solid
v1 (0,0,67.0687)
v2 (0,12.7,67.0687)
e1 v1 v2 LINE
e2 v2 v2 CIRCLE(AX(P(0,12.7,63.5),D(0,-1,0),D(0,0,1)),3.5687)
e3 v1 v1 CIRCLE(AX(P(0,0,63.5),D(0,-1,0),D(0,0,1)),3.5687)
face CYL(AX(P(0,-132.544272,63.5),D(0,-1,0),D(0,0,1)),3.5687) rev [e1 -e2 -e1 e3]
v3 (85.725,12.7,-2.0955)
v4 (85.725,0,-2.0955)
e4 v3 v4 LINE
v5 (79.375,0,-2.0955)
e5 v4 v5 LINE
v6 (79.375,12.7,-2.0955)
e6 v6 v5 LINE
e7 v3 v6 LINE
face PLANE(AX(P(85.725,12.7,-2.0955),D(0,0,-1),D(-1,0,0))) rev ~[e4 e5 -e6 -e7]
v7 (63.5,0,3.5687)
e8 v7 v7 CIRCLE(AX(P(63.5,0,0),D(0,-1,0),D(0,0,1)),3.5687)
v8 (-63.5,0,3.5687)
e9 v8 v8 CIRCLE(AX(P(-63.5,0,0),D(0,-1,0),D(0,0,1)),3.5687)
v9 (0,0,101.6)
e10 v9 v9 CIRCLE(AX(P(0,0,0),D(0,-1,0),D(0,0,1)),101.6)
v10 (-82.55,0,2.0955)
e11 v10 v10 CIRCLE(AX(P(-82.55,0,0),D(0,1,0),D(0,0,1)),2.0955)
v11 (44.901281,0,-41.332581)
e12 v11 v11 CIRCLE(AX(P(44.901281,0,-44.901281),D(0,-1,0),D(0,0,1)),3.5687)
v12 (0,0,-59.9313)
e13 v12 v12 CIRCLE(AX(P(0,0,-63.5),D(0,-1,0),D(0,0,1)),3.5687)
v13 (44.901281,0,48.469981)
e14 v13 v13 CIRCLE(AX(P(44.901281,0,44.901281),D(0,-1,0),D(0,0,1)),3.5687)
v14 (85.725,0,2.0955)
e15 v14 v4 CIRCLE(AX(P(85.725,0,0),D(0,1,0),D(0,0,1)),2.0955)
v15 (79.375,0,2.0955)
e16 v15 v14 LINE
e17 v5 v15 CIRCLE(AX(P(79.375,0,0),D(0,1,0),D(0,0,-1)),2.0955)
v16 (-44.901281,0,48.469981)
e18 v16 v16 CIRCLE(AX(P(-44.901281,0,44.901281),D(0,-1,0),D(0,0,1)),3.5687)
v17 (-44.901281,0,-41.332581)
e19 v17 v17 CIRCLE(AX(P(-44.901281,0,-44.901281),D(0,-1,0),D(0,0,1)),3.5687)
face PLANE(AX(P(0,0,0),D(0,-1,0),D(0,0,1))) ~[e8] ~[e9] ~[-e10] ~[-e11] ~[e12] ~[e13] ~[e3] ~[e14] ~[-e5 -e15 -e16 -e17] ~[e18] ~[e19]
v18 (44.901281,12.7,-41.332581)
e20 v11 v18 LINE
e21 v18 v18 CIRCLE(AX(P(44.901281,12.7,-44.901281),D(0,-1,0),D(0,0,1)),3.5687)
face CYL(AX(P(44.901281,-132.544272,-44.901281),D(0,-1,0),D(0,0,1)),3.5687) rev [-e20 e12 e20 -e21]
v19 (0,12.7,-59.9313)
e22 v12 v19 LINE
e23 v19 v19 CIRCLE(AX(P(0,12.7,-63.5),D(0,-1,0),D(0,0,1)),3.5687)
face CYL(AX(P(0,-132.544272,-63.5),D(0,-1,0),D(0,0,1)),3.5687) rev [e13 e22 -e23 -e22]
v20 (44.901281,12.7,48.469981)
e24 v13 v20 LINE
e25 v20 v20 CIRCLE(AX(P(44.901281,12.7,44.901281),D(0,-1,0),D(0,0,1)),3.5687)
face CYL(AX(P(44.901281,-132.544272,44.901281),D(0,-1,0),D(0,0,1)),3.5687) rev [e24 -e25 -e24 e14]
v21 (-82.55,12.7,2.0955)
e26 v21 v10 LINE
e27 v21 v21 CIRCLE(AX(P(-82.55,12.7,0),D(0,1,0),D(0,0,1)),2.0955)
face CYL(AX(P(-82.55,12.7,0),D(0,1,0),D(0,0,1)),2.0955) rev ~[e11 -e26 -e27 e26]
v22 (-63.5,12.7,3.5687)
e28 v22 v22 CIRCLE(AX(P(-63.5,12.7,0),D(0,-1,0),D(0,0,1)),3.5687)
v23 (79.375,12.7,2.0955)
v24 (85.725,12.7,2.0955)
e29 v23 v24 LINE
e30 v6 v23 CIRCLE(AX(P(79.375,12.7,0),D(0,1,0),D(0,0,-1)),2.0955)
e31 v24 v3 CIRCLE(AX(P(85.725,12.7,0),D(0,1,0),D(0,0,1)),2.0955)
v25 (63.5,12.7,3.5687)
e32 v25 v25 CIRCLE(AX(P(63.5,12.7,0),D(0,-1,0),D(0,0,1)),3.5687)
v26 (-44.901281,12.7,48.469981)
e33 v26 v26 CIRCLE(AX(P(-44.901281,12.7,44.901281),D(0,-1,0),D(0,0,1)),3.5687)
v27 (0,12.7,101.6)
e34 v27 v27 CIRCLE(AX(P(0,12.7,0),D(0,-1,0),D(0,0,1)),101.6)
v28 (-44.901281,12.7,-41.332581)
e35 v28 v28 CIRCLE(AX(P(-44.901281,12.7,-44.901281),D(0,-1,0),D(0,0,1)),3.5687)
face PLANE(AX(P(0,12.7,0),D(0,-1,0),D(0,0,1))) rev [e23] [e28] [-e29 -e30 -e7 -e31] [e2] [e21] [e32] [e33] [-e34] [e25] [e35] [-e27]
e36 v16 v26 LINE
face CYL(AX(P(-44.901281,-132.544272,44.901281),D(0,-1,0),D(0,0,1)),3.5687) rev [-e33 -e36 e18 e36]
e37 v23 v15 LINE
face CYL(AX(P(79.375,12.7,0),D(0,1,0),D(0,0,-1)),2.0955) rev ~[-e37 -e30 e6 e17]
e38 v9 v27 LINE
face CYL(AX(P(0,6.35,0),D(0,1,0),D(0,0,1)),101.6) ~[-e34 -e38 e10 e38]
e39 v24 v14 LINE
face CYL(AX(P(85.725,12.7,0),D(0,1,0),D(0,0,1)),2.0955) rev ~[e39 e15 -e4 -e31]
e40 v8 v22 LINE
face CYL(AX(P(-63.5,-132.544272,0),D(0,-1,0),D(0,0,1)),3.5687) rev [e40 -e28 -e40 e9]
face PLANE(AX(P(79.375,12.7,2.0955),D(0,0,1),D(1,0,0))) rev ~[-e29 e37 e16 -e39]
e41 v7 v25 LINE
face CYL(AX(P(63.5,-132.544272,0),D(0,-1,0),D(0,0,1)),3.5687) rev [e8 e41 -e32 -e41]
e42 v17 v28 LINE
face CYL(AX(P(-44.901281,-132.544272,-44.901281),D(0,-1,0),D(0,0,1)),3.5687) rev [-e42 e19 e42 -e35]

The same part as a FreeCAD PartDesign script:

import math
import FreeCAD as App
import Part
import Sketcher

V = App.Vector
Q = App.Units.Quantity


def add_polygon(sketch, points):
    """Adds a closed chain of lines whose ends are joined by coincident constraints."""
    first, n = sketch.GeometryCount, len(points)
    for a, b in zip(points, points[1:] + points[:1]):
        sketch.addGeometry(Part.LineSegment(App.Vector(*a, 0), App.Vector(*b, 0)), False)
    for i in range(n):
        sketch.addConstraint(Sketcher.Constraint("Coincident", first + i, 2, first + (i + 1) % n, 1))

doc = App.newDocument("Part")
body = doc.addObject("PartDesign::Body", "Body")

# Sketch on YZ plane
sketch1 = body.newObject("Sketcher::SketchObject", "Sketch")
sketch1.AttachmentSupport = (doc.getObject("YZ_Plane"), [""])
sketch1.MapMode = "FlatFace"
add_polygon(sketch1, [(13, 0), (0, 0), (0, -102), (13, -102)])  # lines 0-3
sketch1.addConstraint(Sketcher.Constraint("Horizontal", 0))
sketch1.addConstraint(Sketcher.Constraint("Vertical", 1))
sketch1.addConstraint(Sketcher.Constraint("Horizontal", 2))
sketch1.addConstraint(Sketcher.Constraint("Vertical", 3))
sketch1.addConstraint(Sketcher.Constraint("Coincident", 0, 2, -1, 1))
sketch1.addConstraint(Sketcher.Constraint("DistanceY", 1, 2, 1, 1, Q("4 in")))
sketch1.addConstraint(Sketcher.Constraint("DistanceX", 0, 2, 0, 1, Q("0.5 in")))
revolution = body.newObject("PartDesign::Revolution", "Revolution")
revolution.Profile = sketch1
revolution.ReferenceAxis = (sketch1, ["H_Axis"])
revolution.Angle = 360

# Sketch on XZ plane
sketch2 = body.newObject("Sketcher::SketchObject", "Sketch001")
sketch2.AttachmentSupport = (doc.getObject("XZ_Plane"), [""])
sketch2.MapMode = "FlatFace"
sketch2.AttachmentOffset = App.Placement(V(0, 0, -0.5 * 25.4), App.Rotation())
sketch2.addGeometry(Part.Circle(V(0, -63.5, 0), V(0, 0, 1), 3.6), False)
sketch2.addGeometry(Part.Circle(V(44.9, -44.9, 0), V(0, 0, 1), 3.6), False)
sketch2.addGeometry(Part.Circle(V(63.5, 0, 0), V(0, 0, 1), 3.6), False)
sketch2.addGeometry(Part.Circle(V(44.9, 44.9, 0), V(0, 0, 1), 3.6), False)
sketch2.addGeometry(Part.Circle(V(0, 63.5, 0), V(0, 0, 1), 3.6), False)
sketch2.addGeometry(Part.Circle(V(-44.9, 44.9, 0), V(0, 0, 1), 3.6), False)
sketch2.addGeometry(Part.Circle(V(-63.5, 0, 0), V(0, 0, 1), 3.6), False)
sketch2.addGeometry(Part.Circle(V(-44.9, -44.9, 0), V(0, 0, 1), 3.6), False)
sketch2.addConstraint(Sketcher.Constraint("Equal", 0, 1))
sketch2.addConstraint(Sketcher.Constraint("Equal", 1, 2))
sketch2.addConstraint(Sketcher.Constraint("Equal", 2, 3))
sketch2.addConstraint(Sketcher.Constraint("Equal", 3, 4))
sketch2.addConstraint(Sketcher.Constraint("Equal", 4, 5))
sketch2.addConstraint(Sketcher.Constraint("Equal", 5, 6))
sketch2.addConstraint(Sketcher.Constraint("Equal", 6, 7))
sketch2.addConstraint(Sketcher.Constraint("Symmetric", 0, 3, 4, 3, -1, 1))
sketch2.addConstraint(Sketcher.Constraint("Symmetric", 1, 3, 5, 3, -1, 1))
sketch2.addConstraint(Sketcher.Constraint("Symmetric", 2, 3, 6, 3, -1, 1))
sketch2.addConstraint(Sketcher.Constraint("Symmetric", 3, 3, 7, 3, -1, 1))
sketch2.addConstraint(Sketcher.Constraint("Symmetric", 3, 3, 5, 3, -2))
sketch2.addConstraint(Sketcher.Constraint("PointOnObject", 0, 3, -2))
sketch2.addConstraint(Sketcher.Constraint("PointOnObject", 2, 3, -1))
sketch2.addConstraint(Sketcher.Constraint("Diameter", 0, Q("0.281 in")))
sketch2.addConstraint(Sketcher.Constraint("DistanceY", 0, 3, 4, 3, Q("5 in")))
sketch2.addConstraint(Sketcher.Constraint("DistanceX", -1, 1, 2, 3, Q("2.5 in")))
sketch2.addConstraint(Sketcher.Constraint("DistanceX", -1, 1, 1, 3, Q("44.901281 mm")))
sketch2.addConstraint(Sketcher.Constraint("DistanceY", 1, 3, -1, 1, Q("44.901281 mm")))
pocket1 = body.newObject("PartDesign::Pocket", "Pocket")
pocket1.Profile = sketch2
pocket1.Type = "ThroughAll"
pocket1.Midplane = True

# Sketch on XZ plane
sketch3 = body.newObject("Sketcher::SketchObject", "Sketch002")
sketch3.AttachmentSupport = (doc.getObject("XZ_Plane"), [""])
sketch3.MapMode = "FlatFace"
sketch3.AttachmentOffset = App.Placement(V(0, 0, -0.5 * 25.4), App.Rotation())
sketch3.addGeometry(Part.Circle(V(-82.5, 0, 0), V(0, 0, 1), 2.1), False)
sketch3.addGeometry(Part.LineSegment(V(79.4, 2.1, 0), V(85.7, 2.1, 0)), False)
sketch3.addGeometry(Part.ArcOfCircle(Part.Circle(V(85.7, 0, 0), V(0, 0, 1), 2.1), math.radians(-90), math.radians(90)), False)
sketch3.addGeometry(Part.LineSegment(V(85.7, -2.1, 0), V(79.4, -2.1, 0)), False)
sketch3.addGeometry(Part.ArcOfCircle(Part.Circle(V(79.4, 0, 0), V(0, 0, 1), 2.1), math.radians(90), math.radians(270)), False)
sketch3.addConstraint(Sketcher.Constraint("Tangent", 1, 2, 2, 2))
sketch3.addConstraint(Sketcher.Constraint("Tangent", 2, 1, 3, 1))
sketch3.addConstraint(Sketcher.Constraint("Tangent", 3, 2, 4, 2))
sketch3.addConstraint(Sketcher.Constraint("Tangent", 4, 1, 1, 1))
sketch3.addConstraint(Sketcher.Constraint("Horizontal", 1))
sketch3.addConstraint(Sketcher.Constraint("Horizontal", 3))
sketch3.addConstraint(Sketcher.Constraint("Equal", 0, 2))
sketch3.addConstraint(Sketcher.Constraint("PointOnObject", 0, 3, -1))
sketch3.addConstraint(Sketcher.Constraint("PointOnObject", 2, 3, -1))
sketch3.addConstraint(Sketcher.Constraint("Diameter", 0, Q("0.165 in")))
sketch3.addConstraint(Sketcher.Constraint("DistanceX", 1, 1, 1, 2, Q("0.25 in")))
sketch3.addConstraint(Sketcher.Constraint("DistanceX", 0, 3, -1, 1, Q("3.25 in")))
sketch3.addConstraint(Sketcher.Constraint("DistanceX", -1, 1, 2, 3, Q("3.375 in")))
pocket2 = body.newObject("PartDesign::Pocket", "Pocket001")
pocket2.Profile = sketch3
pocket2.Length = Q("1.25 in")
pocket2.Reversed = True

doc.recompute()
